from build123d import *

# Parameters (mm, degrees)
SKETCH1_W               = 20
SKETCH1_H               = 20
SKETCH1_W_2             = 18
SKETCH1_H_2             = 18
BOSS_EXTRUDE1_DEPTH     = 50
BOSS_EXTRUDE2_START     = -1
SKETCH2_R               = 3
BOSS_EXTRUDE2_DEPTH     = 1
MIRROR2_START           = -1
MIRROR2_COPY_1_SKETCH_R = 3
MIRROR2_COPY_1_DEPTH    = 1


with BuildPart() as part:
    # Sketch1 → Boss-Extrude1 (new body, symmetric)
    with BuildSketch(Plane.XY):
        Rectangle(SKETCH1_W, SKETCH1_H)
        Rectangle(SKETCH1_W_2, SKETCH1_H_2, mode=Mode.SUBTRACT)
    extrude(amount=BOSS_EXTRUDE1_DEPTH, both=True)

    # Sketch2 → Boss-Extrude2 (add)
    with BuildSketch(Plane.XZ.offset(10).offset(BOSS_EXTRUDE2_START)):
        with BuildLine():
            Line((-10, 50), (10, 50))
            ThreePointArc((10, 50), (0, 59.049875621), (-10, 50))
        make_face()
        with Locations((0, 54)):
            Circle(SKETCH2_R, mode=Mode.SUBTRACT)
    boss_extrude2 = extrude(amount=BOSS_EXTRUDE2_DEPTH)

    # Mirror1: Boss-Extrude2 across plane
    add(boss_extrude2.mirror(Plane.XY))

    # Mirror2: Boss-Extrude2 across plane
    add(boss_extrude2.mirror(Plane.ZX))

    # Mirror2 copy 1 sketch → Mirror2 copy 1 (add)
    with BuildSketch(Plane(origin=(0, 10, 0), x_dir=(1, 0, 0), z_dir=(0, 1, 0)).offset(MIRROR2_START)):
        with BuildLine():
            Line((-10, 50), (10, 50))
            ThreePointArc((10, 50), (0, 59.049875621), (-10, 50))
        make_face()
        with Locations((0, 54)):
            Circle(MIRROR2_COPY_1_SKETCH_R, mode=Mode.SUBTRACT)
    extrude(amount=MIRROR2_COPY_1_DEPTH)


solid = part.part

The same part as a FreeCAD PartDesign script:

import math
import FreeCAD as App
import Part
import Sketcher

V = App.Vector
Q = App.Units.Quantity

doc = App.newDocument("Part")
body = doc.addObject("PartDesign::Body", "Body")

sketch1 = doc.addObject("Sketcher::SketchObject", "Sketch")
body.addObject(sketch1)
sketch1.AttachmentSupport = (doc.XY_Plane, [""])
sketch1.MapMode = "FlatFace"
sketch1.addGeometry([
    Part.LineSegment(V(-10, 10, 0), V(-10, -10, 0)),
    Part.LineSegment(V(-10, -10, 0), V(10, -10, 0)),
    Part.LineSegment(V(10, -10, 0), V(10, 10, 0)),
    Part.LineSegment(V(10, 10, 0), V(-10, 10, 0)),
    Part.LineSegment(V(9, -9, 0), V(-9, -9, 0)),
    Part.LineSegment(V(-9, -9, 0), V(-9, 9, 0)),
    Part.LineSegment(V(-9, 9, 0), V(9, 9, 0)),
    Part.LineSegment(V(9, 9, 0), V(9, -9, 0)),
], False)
sketch1.addConstraint([
    Sketcher.Constraint("Coincident", 0, 2, 1, 1),
    Sketcher.Constraint("Coincident", 1, 2, 2, 1),
    Sketcher.Constraint("Coincident", 2, 2, 3, 1),
    Sketcher.Constraint("Coincident", 3, 2, 0, 1),
    Sketcher.Constraint("Coincident", 4, 2, 5, 1),
    Sketcher.Constraint("Coincident", 5, 2, 6, 1),
    Sketcher.Constraint("Coincident", 6, 2, 7, 1),
    Sketcher.Constraint("Coincident", 7, 2, 4, 1),
    Sketcher.Constraint("Vertical", 0),
    Sketcher.Constraint("Horizontal", 1),
    Sketcher.Constraint("Vertical", 2),
    Sketcher.Constraint("Horizontal", 3),
    Sketcher.Constraint("Horizontal", 4),
    Sketcher.Constraint("Vertical", 5),
    Sketcher.Constraint("Horizontal", 6),
    Sketcher.Constraint("Vertical", 7),
    Sketcher.Constraint("Symmetric", 0, 2, 2, 2, -1, 1),
    Sketcher.Constraint("Symmetric", 4, 2, 6, 2, -1, 1),
    Sketcher.Constraint("Equal", 3, 0),
    Sketcher.Constraint("Equal", 6, 5),
    Sketcher.Constraint("DistanceX", 1, 1, 1, 2, Q("20 mm")),
    Sketcher.Constraint("DistanceX", 4, 2, 4, 1, Q("18 mm")),
])
pad1 = doc.addObject("PartDesign::Pad", "Pad")
body.addObject(pad1)
pad1.Profile = sketch1
pad1.Length = 100
pad1.Midplane = True

sketch2 = doc.addObject("Sketcher::SketchObject", "Sketch001")
body.addObject(sketch2)
sketch2.AttachmentSupport = (doc.XZ_Plane, [""])
sketch2.MapMode = "FlatFace"
sketch2.AttachmentOffset = App.Placement(V(0, 0, 9), App.Rotation())
sketch2.addGeometry([
    Part.LineSegment(V(-10, 50, 0), V(10, 50, 0)),
    Part.ArcOfCircle(Part.Circle(V(0, 49, 0), V(0, 0, 1), 10), math.radians(6), math.radians(174)),
    Part.Circle(V(0, 54, 0), V(0, 0, 1), 3),
], False)
sketch2.addConstraint([
    Sketcher.Constraint("Coincident", 0, 1, 1, 2),
    Sketcher.Constraint("Coincident", 1, 1, 0, 2),
    Sketcher.Constraint("Horizontal", 0),
    Sketcher.Constraint("PointOnObject", 1, 3, -2),
    Sketcher.Constraint("PointOnObject", 2, 3, -2),
    Sketcher.Constraint("Diameter", 2, Q("6 mm")),
    Sketcher.Constraint("DistanceX", 0, 1, 0, 2, Q("20 mm")),
    Sketcher.Constraint("DistanceY", -1, 1, 1, 3, Q("49 mm")),
    Sketcher.Constraint("DistanceY", -1, 1, 2, 3, Q("54 mm")),
    Sketcher.Constraint("DistanceY", -1, 1, 0, 1, Q("50 mm")),
])
pad2 = doc.addObject("PartDesign::Pad", "Pad001")
body.addObject(pad2)
pad2.Profile = sketch2
pad2.Length = 1
doc.recompute()

mirrored = doc.addObject("PartDesign::Mirrored", "Mirrored")
body.addObject(mirrored)
mirrored.Originals = [pad2]
mirrored.MirrorPlane = (doc.XY_Plane, [""])
body.Tip = mirrored
doc.recompute()

mirrored2 = doc.addObject("PartDesign::Mirrored", "Mirrored001")
body.addObject(mirrored2)
mirrored2.Originals = [pad2]
mirrored2.MirrorPlane = (doc.XZ_Plane, [""])
body.Tip = mirrored2

sketch3 = doc.addObject("Sketcher::SketchObject", "Sketch002")
body.addObject(sketch3)
sketch3.AttachmentSupport = (doc.XZ_Plane, [""])
sketch3.MapMode = "FlatFace"
sketch3.AttachmentOffset = App.Placement(V(0, 0, -9), App.Rotation())
sketch3.addGeometry([
    Part.LineSegment(V(-10, -50, 0), V(10, -50, 0)),
    Part.ArcOfCircle(Part.Circle(V(0, -49, 0), V(0, 0, 1), 10), math.radians(-174), math.radians(-6)),
    Part.Circle(V(0, -54, 0), V(0, 0, 1), 3),
], False)
sketch3.addConstraint([
    Sketcher.Constraint("Coincident", 0, 1, 1, 1),
    Sketcher.Constraint("Coincident", 1, 2, 0, 2),
    Sketcher.Constraint("Horizontal", 0),
    Sketcher.Constraint("PointOnObject", 1, 3, -2),
    Sketcher.Constraint("PointOnObject", 2, 3, -2),
    Sketcher.Constraint("Diameter", 2, Q("6 mm")),
    Sketcher.Constraint("DistanceX", 0, 1, 0, 2, Q("20 mm")),
    Sketcher.Constraint("DistanceY", 1, 3, -1, 1, Q("49 mm")),
    Sketcher.Constraint("DistanceY", 2, 3, -1, 1, Q("54 mm")),
    Sketcher.Constraint("DistanceY", 0, 1, -1, 1, Q("50 mm")),
])
pad3 = doc.addObject("PartDesign::Pad", "Pad002")
body.addObject(pad3)
pad3.Profile = sketch3
pad3.Length = 1
pad3.Reversed = True

doc.recompute()
